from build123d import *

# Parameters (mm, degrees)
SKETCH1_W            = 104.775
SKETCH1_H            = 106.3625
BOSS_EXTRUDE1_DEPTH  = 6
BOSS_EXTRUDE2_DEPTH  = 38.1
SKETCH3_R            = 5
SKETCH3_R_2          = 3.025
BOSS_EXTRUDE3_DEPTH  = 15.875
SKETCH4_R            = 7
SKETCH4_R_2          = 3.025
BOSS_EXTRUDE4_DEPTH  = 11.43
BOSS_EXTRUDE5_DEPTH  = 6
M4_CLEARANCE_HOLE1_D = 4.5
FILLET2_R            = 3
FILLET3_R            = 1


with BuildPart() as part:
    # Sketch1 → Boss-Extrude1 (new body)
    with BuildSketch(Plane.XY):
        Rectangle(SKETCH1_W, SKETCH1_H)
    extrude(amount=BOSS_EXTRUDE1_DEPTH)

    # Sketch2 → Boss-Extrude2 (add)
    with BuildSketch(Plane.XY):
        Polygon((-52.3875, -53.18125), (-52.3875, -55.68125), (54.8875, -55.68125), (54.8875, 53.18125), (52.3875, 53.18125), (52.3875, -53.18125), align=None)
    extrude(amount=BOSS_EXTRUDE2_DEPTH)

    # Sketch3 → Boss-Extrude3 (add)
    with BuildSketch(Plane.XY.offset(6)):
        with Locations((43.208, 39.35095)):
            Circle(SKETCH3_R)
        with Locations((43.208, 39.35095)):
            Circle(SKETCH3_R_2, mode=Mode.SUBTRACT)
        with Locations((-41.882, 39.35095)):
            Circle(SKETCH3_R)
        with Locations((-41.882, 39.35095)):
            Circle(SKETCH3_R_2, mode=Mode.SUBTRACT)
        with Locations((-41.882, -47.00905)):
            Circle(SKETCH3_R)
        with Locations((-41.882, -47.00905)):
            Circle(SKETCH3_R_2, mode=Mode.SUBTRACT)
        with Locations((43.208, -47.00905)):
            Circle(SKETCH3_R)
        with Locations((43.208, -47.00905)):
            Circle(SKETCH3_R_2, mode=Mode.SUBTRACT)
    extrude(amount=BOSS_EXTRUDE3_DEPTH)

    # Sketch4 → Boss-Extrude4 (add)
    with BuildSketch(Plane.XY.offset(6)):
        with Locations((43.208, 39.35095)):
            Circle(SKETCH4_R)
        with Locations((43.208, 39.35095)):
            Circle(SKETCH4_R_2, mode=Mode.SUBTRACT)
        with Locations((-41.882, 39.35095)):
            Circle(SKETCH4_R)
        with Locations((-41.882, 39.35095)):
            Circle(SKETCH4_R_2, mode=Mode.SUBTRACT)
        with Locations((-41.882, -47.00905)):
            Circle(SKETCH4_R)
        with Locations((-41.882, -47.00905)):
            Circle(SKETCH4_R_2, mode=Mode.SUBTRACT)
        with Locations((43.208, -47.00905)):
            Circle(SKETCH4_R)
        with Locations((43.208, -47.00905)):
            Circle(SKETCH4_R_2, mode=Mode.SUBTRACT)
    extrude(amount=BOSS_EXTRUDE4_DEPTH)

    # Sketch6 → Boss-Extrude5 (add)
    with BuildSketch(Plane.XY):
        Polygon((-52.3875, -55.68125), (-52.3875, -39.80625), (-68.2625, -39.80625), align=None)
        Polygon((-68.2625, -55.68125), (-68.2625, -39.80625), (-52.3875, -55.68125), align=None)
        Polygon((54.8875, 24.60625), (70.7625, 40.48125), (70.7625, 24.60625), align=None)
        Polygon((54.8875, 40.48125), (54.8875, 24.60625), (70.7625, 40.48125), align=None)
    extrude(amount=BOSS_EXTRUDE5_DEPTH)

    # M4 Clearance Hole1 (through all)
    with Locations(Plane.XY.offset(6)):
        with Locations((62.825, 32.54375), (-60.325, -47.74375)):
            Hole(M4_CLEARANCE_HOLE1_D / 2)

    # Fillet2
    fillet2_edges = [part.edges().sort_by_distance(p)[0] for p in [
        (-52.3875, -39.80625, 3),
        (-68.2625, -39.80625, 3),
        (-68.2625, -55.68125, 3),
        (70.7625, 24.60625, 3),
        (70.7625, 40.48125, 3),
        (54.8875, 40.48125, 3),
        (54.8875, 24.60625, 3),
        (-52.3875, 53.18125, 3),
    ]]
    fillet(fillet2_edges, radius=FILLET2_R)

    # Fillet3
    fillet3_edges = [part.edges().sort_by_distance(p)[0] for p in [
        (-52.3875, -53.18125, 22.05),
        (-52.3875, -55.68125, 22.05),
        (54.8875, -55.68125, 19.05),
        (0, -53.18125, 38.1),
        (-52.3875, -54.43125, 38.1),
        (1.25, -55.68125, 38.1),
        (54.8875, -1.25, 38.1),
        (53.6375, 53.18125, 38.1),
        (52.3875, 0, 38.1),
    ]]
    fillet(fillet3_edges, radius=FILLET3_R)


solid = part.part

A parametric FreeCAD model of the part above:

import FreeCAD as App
import Part
import Sketcher

V = App.Vector
Q = App.Units.Quantity


def edges_at(feature, points):
    """Names of the edges that pass closest to the given points."""
    edges = feature.Shape.Edges
    near = lambda p: min(range(len(edges)), key=lambda i: edges[i].distToShape(Part.Vertex(*p))[0])
    return sorted({f"Edge{near(p) + 1}" for p in points})


def add_polygon(sketch, points):
    """Adds a closed chain of lines whose ends are joined by coincident constraints."""
    first, n = sketch.GeometryCount, len(points)
    for a, b in zip(points, points[1:] + points[:1]):
        sketch.addGeometry(Part.LineSegment(App.Vector(*a, 0), App.Vector(*b, 0)), False)
    for i in range(n):
        sketch.addConstraint(Sketcher.Constraint("Coincident", first + i, 2, first + (i + 1) % n, 1))

doc = App.newDocument("Part")
body = doc.addObject("PartDesign::Body", "Body")

# Sketch on XY plane
sketch1 = doc.addObject("Sketcher::SketchObject", "Sketch")
body.addObject(sketch1)
sketch1.AttachmentSupport = (doc.XY_Plane, [""])
sketch1.MapMode = "FlatFace"
add_polygon(sketch1, [(-52, 53), (-52, -53), (52, -53), (52, 53)])  # lines 0-3
sketch1.addConstraint([
    Sketcher.Constraint("Vertical", 0),
    Sketcher.Constraint("Horizontal", 1),
    Sketcher.Constraint("Vertical", 2),
    Sketcher.Constraint("Horizontal", 3),
    Sketcher.Constraint("Symmetric", 0, 2, 2, 2, -1, 1),
    Sketcher.Constraint("DistanceX", 1, 1, 1, 2, Q("104.775 mm")),
    Sketcher.Constraint("DistanceY", 0, 2, 0, 1, Q("106.3625 mm")),
])
pad1 = doc.addObject("PartDesign::Pad", "Pad")
body.addObject(pad1)
pad1.Profile = sketch1
pad1.Length = 6

# Sketch on XY plane
sketch2 = doc.addObject("Sketcher::SketchObject", "Sketch001")
body.addObject(sketch2)
sketch2.AttachmentSupport = (doc.XY_Plane, [""])
sketch2.MapMode = "FlatFace"
add_polygon(sketch2, [(-52.4, -53.2), (-52.4, -55.7), (54.9, -55.7), (54.9, 53.2), (52.4, 53.2), (52.4, -53.2)])  # lines 0-5
sketch2.addConstraint([
    Sketcher.Constraint("Vertical", 0),
    Sketcher.Constraint("Horizontal", 1),
    Sketcher.Constraint("Vertical", 2),
    Sketcher.Constraint("Horizontal", 3),
    Sketcher.Constraint("Vertical", 4),
    Sketcher.Constraint("Horizontal", 5),
    Sketcher.Constraint("Symmetric", 3, 2, 5, 2, -1, 1),
    Sketcher.Constraint("Equal", 3, 0),
    Sketcher.Constraint("DistanceX", 3, 2, 3, 1, Q("2.5 mm")),
    Sketcher.Constraint("DistanceX", 1, 1, 1, 2, Q("107.275 mm")),
    Sketcher.Constraint("DistanceY", 2, 1, 2, 2, Q("108.8625 mm")),
])
pad2 = doc.addObject("PartDesign::Pad", "Pad001")
body.addObject(pad2)
pad2.Profile = sketch2
pad2.Length = 38.1

# Sketch on XY plane
sketch3 = doc.addObject("Sketcher::SketchObject", "Sketch002")
body.addObject(sketch3)
sketch3.AttachmentSupport = (doc.XY_Plane, [""])
sketch3.MapMode = "FlatFace"
sketch3.AttachmentOffset = App.Placement(V(0, 0, 6), App.Rotation())
sketch3.addGeometry([
    Part.Circle(V(43.2, 39.4, 0), V(0, 0, 1), 5),  # 0
    Part.Circle(V(43.2, 39.4, 0), V(0, 0, 1), 3),  # 1
    Part.Circle(V(-41.9, 39.4, 0), V(0, 0, 1), 5),  # 2
    Part.Circle(V(-41.9, 39.4, 0), V(0, 0, 1), 3),  # 3
    Part.Circle(V(-41.9, -47, 0), V(0, 0, 1), 5),  # 4
    Part.Circle(V(-41.9, -47, 0), V(0, 0, 1), 3),  # 5
    Part.Circle(V(43.2, -47, 0), V(0, 0, 1), 5),  # 6
    Part.Circle(V(43.2, -47, 0), V(0, 0, 1), 3),  # 7
], False)
sketch3.addConstraint([
    Sketcher.Constraint("Coincident", 1, 3, 0, 3),
    Sketcher.Constraint("Coincident", 3, 3, 2, 3),
    Sketcher.Constraint("Coincident", 5, 3, 4, 3),
    Sketcher.Constraint("Coincident", 7, 3, 6, 3),
    Sketcher.Constraint("Equal", 0, 2),
    Sketcher.Constraint("Equal", 1, 3),
    Sketcher.Constraint("Equal", 2, 4),
    Sketcher.Constraint("Equal", 3, 5),
    Sketcher.Constraint("Equal", 4, 6),
    Sketcher.Constraint("Equal", 5, 7),
    Sketcher.Constraint("Horizontal", 1, 3, 2, 3),
    Sketcher.Constraint("Horizontal", 5, 3, 6, 3),
    Sketcher.Constraint("Vertical", 3, 3, 4, 3),
    Sketcher.Constraint("Vertical", 1, 3, 6, 3),
    Sketcher.Constraint("Diameter", 0, Q("10 mm")),
    Sketcher.Constraint("Diameter", 1, Q("6.05 mm")),
    Sketcher.Constraint("DistanceX", 2, 3, 0, 3, Q("85.09 mm")),
    Sketcher.Constraint("DistanceY", 4, 3, 2, 3, Q("86.36 mm")),
    Sketcher.Constraint("DistanceX", -1, 1, 0, 3, Q("43.208 mm")),
    Sketcher.Constraint("DistanceY", -1, 1, 0, 3, Q("39.35095 mm")),
])
pad3 = doc.addObject("PartDesign::Pad", "Pad002")
body.addObject(pad3)
pad3.Profile = sketch3
pad3.Length = 15.875

# Sketch on XY plane
sketch4 = doc.addObject("Sketcher::SketchObject", "Sketch003")
body.addObject(sketch4)
sketch4.AttachmentSupport = (doc.XY_Plane, [""])
sketch4.MapMode = "FlatFace"
sketch4.AttachmentOffset = App.Placement(V(0, 0, 6), App.Rotation())
sketch4.addGeometry([
    Part.Circle(V(43.2, 39.4, 0), V(0, 0, 1), 7),  # 0
    Part.Circle(V(43.2, 39.4, 0), V(0, 0, 1), 3),  # 1
    Part.Circle(V(-41.9, 39.4, 0), V(0, 0, 1), 7),  # 2
    Part.Circle(V(-41.9, 39.4, 0), V(0, 0, 1), 3),  # 3
    Part.Circle(V(-41.9, -47, 0), V(0, 0, 1), 7),  # 4
    Part.Circle(V(-41.9, -47, 0), V(0, 0, 1), 3),  # 5
    Part.Circle(V(43.2, -47, 0), V(0, 0, 1), 7),  # 6
    Part.Circle(V(43.2, -47, 0), V(0, 0, 1), 3),  # 7
], False)
sketch4.addConstraint([
    Sketcher.Constraint("Coincident", 1, 3, 0, 3),
    Sketcher.Constraint("Coincident", 3, 3, 2, 3),
    Sketcher.Constraint("Coincident", 5, 3, 4, 3),
    Sketcher.Constraint("Coincident", 7, 3, 6, 3),
    Sketcher.Constraint("Equal", 0, 2),
    Sketcher.Constraint("Equal", 1, 3),
    Sketcher.Constraint("Equal", 2, 4),
    Sketcher.Constraint("Equal", 3, 5),
    Sketcher.Constraint("Equal", 4, 6),
    Sketcher.Constraint("Equal", 5, 7),
    Sketcher.Constraint("Horizontal", 1, 3, 2, 3),
    Sketcher.Constraint("Horizontal", 5, 3, 6, 3),
    Sketcher.Constraint("Vertical", 3, 3, 4, 3),
    Sketcher.Constraint("Vertical", 1, 3, 6, 3),
    Sketcher.Constraint("Diameter", 0, Q("14 mm")),
    Sketcher.Constraint("Diameter", 1, Q("6.05 mm")),
    Sketcher.Constraint("DistanceX", 2, 3, 0, 3, Q("85.09 mm")),
    Sketcher.Constraint("DistanceY", 4, 3, 2, 3, Q("86.36 mm")),
    Sketcher.Constraint("DistanceX", -1, 1, 0, 3, Q("43.208 mm")),
    Sketcher.Constraint("DistanceY", -1, 1, 0, 3, Q("39.35095 mm")),
])
pad4 = doc.addObject("PartDesign::Pad", "Pad003")
body.addObject(pad4)
pad4.Profile = sketch4
pad4.Length = 11.43

# Sketch on XY plane
sketch5 = doc.addObject("Sketcher::SketchObject", "Sketch004")
body.addObject(sketch5)
sketch5.AttachmentSupport = (doc.XY_Plane, [""])
sketch5.MapMode = "FlatFace"
add_polygon(sketch5, [(-52, -56), (-52, -40), (-68, -40), (-68, -56)])  # lines 0-3
add_polygon(sketch5, [(71, 25), (71, 40), (55, 40), (55, 25)])  # lines 4-7
sketch5.addConstraint([
    Sketcher.Constraint("Vertical", 0),
    Sketcher.Constraint("Horizontal", 1),
    Sketcher.Constraint("Vertical", 2),
    Sketcher.Constraint("Horizontal", 3),
    Sketcher.Constraint("Vertical", 4),
    Sketcher.Constraint("Horizontal", 5),
    Sketcher.Constraint("Vertical", 6),
    Sketcher.Constraint("Horizontal", 7),
    Sketcher.Constraint("Equal", 3, 5),
    Sketcher.Constraint("Equal", 7, 0),
    Sketcher.Constraint("Equal", 2, 4),
    Sketcher.Constraint("DistanceX", 1, 2, 1, 1, Q("15.875 mm")),
    Sketcher.Constraint("DistanceX", 0, 2, 4, 2, Q("123.15 mm")),
    Sketcher.Constraint("DistanceX", 0, 2, -1, 1, Q("52.3875 mm")),
    Sketcher.Constraint("DistanceY", 0, 2, 4, 2, Q("80.2875 mm")),
    Sketcher.Constraint("DistanceY", 0, 2, -1, 1, Q("39.80625 mm")),
])
pad5 = doc.addObject("PartDesign::Pad", "Pad004")
body.addObject(pad5)
pad5.Profile = sketch5
pad5.Length = 6

# Sketch on XY plane
sketch6 = doc.addObject("Sketcher::SketchObject", "Sketch005")
body.addObject(sketch6)
sketch6.AttachmentSupport = (doc.XY_Plane, [""])
sketch6.MapMode = "FlatFace"
sketch6.AttachmentOffset = App.Placement(V(0, 0, 6), App.Rotation())
sketch6.addGeometry([
    Part.Circle(V(62.8, 32.5, 0), V(0, 0, 1), 2.2),
    Part.Circle(V(-60.3, -47.7, 0), V(0, 0, 1), 2.2),
], False)
sketch6.addConstraint([
    Sketcher.Constraint("Equal", 0, 1),
    Sketcher.Constraint("Diameter", 0, Q("4.5 mm")),
    Sketcher.Constraint("DistanceX", 1, 3, 0, 3, Q("123.15 mm")),
    Sketcher.Constraint("DistanceX", -1, 1, 0, 3, Q("62.825 mm")),
    Sketcher.Constraint("DistanceY", 1, 3, 0, 3, Q("80.2875 mm")),
    Sketcher.Constraint("DistanceY", -1, 1, 0, 3, Q("32.54375 mm")),
])
doc.recompute()
hole = doc.addObject("PartDesign::Hole", "Hole")
body.addObject(hole)
hole.Profile = sketch6
hole.ThreadType = "None"
hole.Diameter = 4.5
hole.DepthType = "ThroughAll"
doc.recompute()

fillet = doc.addObject("PartDesign::Fillet", "Fillet")
body.addObject(fillet)
fillet.Base = (hole, edges_at(hole, [
    (-52.388, -39.806, 3),
    (-68.263, -39.806, 3),
    (-68.263, -55.681, 3),
    (70.763, 24.606, 3),
    (70.763, 40.481, 3),
    (54.888, 40.481, 3),
    (54.888, 24.606, 3),
    (-52.388, 53.181, 3),
]))
fillet.Radius = 3
doc.recompute()

fillet2 = doc.addObject("PartDesign::Fillet", "Fillet001")
body.addObject(fillet2)
fillet2.Base = (fillet, edges_at(fillet, [
    (-52.388, -53.181, 22.05),
    (-52.388, -55.681, 22.05),
    (54.888, -55.681, 19.05),
    (0, -53.181, 38.1),
    (-52.388, -54.431, 38.1),
    (1.25, -55.681, 38.1),
    (54.888, -1.25, 38.1),
    (53.638, 53.181, 38.1),
    (52.388, 0, 38.1),
]))
fillet2.Radius = 1

doc.recompute()
